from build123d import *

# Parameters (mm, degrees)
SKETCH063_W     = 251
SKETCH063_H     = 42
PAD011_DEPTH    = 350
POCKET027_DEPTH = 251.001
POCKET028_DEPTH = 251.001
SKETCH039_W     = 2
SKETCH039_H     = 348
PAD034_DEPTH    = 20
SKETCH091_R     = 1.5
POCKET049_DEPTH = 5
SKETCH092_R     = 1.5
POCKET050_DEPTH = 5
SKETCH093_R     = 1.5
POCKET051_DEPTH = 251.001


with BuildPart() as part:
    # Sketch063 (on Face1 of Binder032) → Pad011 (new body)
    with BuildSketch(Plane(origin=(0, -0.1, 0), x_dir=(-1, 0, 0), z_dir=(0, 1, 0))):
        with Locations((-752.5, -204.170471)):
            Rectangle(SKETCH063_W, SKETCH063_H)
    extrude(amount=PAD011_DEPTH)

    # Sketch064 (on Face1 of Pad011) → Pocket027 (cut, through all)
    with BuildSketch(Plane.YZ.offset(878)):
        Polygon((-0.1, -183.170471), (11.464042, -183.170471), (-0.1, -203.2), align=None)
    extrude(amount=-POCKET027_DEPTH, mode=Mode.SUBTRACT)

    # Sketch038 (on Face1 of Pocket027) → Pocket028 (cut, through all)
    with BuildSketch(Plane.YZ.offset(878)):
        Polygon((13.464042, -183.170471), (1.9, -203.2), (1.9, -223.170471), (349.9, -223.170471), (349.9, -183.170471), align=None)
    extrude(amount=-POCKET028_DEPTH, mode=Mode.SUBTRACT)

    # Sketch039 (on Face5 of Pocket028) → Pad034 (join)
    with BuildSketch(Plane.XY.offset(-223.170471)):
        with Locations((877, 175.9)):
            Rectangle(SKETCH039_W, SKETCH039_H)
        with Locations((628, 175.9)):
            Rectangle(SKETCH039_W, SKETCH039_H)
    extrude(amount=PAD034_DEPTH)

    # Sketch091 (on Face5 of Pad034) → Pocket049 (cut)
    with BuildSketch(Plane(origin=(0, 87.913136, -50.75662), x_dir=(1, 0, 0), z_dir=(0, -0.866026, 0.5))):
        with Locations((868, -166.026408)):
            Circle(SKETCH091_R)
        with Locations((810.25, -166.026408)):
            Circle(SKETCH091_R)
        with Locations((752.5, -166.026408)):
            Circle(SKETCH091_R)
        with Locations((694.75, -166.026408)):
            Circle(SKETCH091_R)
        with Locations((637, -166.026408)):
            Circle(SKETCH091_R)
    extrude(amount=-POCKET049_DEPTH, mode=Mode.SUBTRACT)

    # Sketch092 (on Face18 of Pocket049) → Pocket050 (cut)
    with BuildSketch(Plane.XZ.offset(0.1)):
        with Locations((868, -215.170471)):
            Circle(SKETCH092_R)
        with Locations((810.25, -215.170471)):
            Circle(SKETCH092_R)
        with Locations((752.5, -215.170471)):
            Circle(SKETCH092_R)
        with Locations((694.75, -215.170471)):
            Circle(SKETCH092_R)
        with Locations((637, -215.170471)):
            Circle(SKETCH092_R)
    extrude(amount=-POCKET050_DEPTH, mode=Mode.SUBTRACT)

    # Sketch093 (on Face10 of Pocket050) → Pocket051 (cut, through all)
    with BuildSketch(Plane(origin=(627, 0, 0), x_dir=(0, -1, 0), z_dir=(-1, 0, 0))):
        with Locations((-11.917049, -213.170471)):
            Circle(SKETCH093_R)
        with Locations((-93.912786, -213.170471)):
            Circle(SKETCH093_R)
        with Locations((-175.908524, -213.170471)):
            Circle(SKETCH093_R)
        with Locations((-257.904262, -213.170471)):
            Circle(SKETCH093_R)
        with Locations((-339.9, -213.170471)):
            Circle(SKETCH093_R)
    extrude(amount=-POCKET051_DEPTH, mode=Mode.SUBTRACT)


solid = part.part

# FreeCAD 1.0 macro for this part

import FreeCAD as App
import Part
import Sketcher
from FreeCAD import Vector
Q = App.Units.Quantity


def add_polygon(sketch, points):
    """Adds a closed chain of lines whose ends are joined by coincident constraints."""
    first, n = sketch.GeometryCount, len(points)
    for a, b in zip(points, points[1:] + points[:1]):
        sketch.addGeometry(Part.LineSegment(App.Vector(*a, 0), App.Vector(*b, 0)), False)
    for i in range(n):
        sketch.addConstraint(Sketcher.Constraint("Coincident", first + i, 2, first + (i + 1) % n, 1))

doc = App.newDocument("Part")
params = doc.addObject("Spreadsheet::Sheet", "Params")
for row, (alias, value) in enumerate([
    ("sketch1_width", "251 mm"),
    ("sketch1_height", "42 mm"),
    ("pad1_length", "350 mm"),
    ("sketch3_width", "348 mm"),
    ("sketch3_height", "40 mm"),
    ("sketch4_width", "2 mm"),
    ("sketch4_height", "348 mm"),
    ("pad2_length", "20 mm"),
    ("sketch5_diameter", "3 mm"),
    ("pocket3_length", "5 mm"),
    ("sketch6_diameter", "3 mm"),
    ("pocket4_length", "5 mm"),
    ("sketch7_diameter", "3 mm"),
], start=1):
    params.set(f"A{row}", alias)
    params.set(f"B{row}", "=" + value)
    params.setAlias(f"B{row}", alias)

body = doc.addObject("PartDesign::Body", "Body")

sketch1 = body.newObject("Sketcher::SketchObject", "Sketch")
sketch1.AttachmentSupport = (doc.getObject("XZ_Plane"), [""])
sketch1.MapMode = "FlatFace"
sketch1.AttachmentOffset = App.Placement(Vector(0, 0, 0.1), App.Rotation())
add_polygon(sketch1, [(878, -183), (878, -225), (627, -225), (627, -183)])
sketch1.addConstraint([
    Sketcher.Constraint("Vertical", 0),
    Sketcher.Constraint("Horizontal", 1),
    Sketcher.Constraint("Vertical", 2),
    Sketcher.Constraint("Horizontal", 3),
    Sketcher.Constraint("DistanceX", 1, 2, 1, 1, Q("251 mm")),
    Sketcher.Constraint("DistanceY", 0, 2, 0, 1, Q("42 mm")),
    Sketcher.Constraint("DistanceX", -1, 1, 0, 2, Q("878 mm")),
    Sketcher.Constraint("DistanceY", 0, 2, -1, 1, Q("225.170471 mm")),
])
sketch1.setExpression("Constraints[8]", "Params.sketch1_width")
sketch1.setExpression("Constraints[9]", "Params.sketch1_height")
pad1 = body.newObject("PartDesign::Pad", "Pad")
pad1.Profile = sketch1
pad1.setExpression("Length", "Params.pad1_length")
pad1.Reversed = True

sketch2 = body.newObject("Sketcher::SketchObject", "Sketch001")
sketch2.AttachmentSupport = (doc.getObject("YZ_Plane"), [""])
sketch2.MapMode = "FlatFace"
sketch2.AttachmentOffset = App.Placement(Vector(0, 0, 878), App.Rotation())
add_polygon(sketch2, [(11, -183), (0, -183), (0, -203)])
sketch2.addConstraint([
    Sketcher.Constraint("Horizontal", 0),
    Sketcher.Constraint("Vertical", 1),
    Sketcher.Constraint("DistanceX", 0, 2, -1, 1, Q("0.1 mm")),
    Sketcher.Constraint("DistanceY", 1, 2, -1, 1, Q("203.2 mm")),
    Sketcher.Constraint("Distance", 2, Q("23.128102 mm")),
    Sketcher.Constraint("DistanceX", 0, 2, 0, 1, Q("11.564042 mm")),
])
pocket1 = body.newObject("PartDesign::Pocket", "Pocket")
pocket1.Profile = sketch2
pocket1.Type = "ThroughAll"

sketch3 = body.newObject("Sketcher::SketchObject", "Sketch002")
sketch3.AttachmentSupport = (doc.getObject("YZ_Plane"), [""])
sketch3.MapMode = "FlatFace"
sketch3.AttachmentOffset = App.Placement(Vector(0, 0, 878), App.Rotation())
add_polygon(sketch3, [(13, -183), (2, -203), (2, -223), (350, -223), (350, -183)])
sketch3.addConstraint([
    Sketcher.Constraint("Vertical", 1),
    Sketcher.Constraint("Horizontal", 2),
    Sketcher.Constraint("Vertical", 3),
    Sketcher.Constraint("Horizontal", 4),
    Sketcher.Constraint("DistanceX", 2, 1, 2, 2, Q("348 mm")),
    Sketcher.Constraint("DistanceY", 3, 1, 3, 2, Q("40 mm")),
    Sketcher.Constraint("DistanceX", -1, 1, 0, 2, Q("1.9 mm")),
    Sketcher.Constraint("DistanceY", 0, 2, -1, 1, Q("203.2 mm")),
    Sketcher.Constraint("Distance", 0, Q("23.128102 mm")),
    Sketcher.Constraint("DistanceY", 1, 2, 1, 1, Q("19.970471 mm")),
])
sketch3.setExpression("Constraints[9]", "Params.sketch3_width")
sketch3.setExpression("Constraints[10]", "Params.sketch3_height")
pocket2 = body.newObject("PartDesign::Pocket", "Pocket001")
pocket2.Profile = sketch3
pocket2.Type = "ThroughAll"

sketch4 = body.newObject("Sketcher::SketchObject", "Sketch003")
sketch4.AttachmentSupport = (doc.getObject("XY_Plane"), [""])
sketch4.MapMode = "FlatFace"
sketch4.AttachmentOffset = App.Placement(Vector(0, 0, -223.170471), App.Rotation())
add_polygon(sketch4, [(876, 349.9), (876, 1.9), (878, 1.9), (878, 349.9)])
add_polygon(sketch4, [(627, 349.9), (627, 1.9), (629, 1.9), (629, 349.9)])
sketch4.addConstraint([
    Sketcher.Constraint("Vertical", 0),
    Sketcher.Constraint("Horizontal", 1),
    Sketcher.Constraint("Vertical", 2),
    Sketcher.Constraint("Horizontal", 3),
    Sketcher.Constraint("Vertical", 4),
    Sketcher.Constraint("Horizontal", 5),
    Sketcher.Constraint("Vertical", 6),
    Sketcher.Constraint("Horizontal", 7),
    Sketcher.Constraint("Horizontal", 1, 2, 4, 2),
    Sketcher.Constraint("Horizontal", 3, 2, 6, 2),
    Sketcher.Constraint("Equal", 3, 5),
    Sketcher.Constraint("DistanceX", 1, 1, 1, 2, Q("2 mm")),
    Sketcher.Constraint("DistanceY", 0, 2, 0, 1, Q("348 mm")),
    Sketcher.Constraint("DistanceX", -1, 1, 0, 2, Q("876 mm")),
    Sketcher.Constraint("DistanceX", -1, 1, 4, 2, Q("627 mm")),
    Sketcher.Constraint("DistanceY", -1, 1, 0, 2, Q("1.9 mm")),
])
sketch4.setExpression("Constraints[19]", "Params.sketch4_width")
sketch4.setExpression("Constraints[20]", "Params.sketch4_height")
pad2 = body.newObject("PartDesign::Pad", "Pad001")
pad2.Profile = sketch4
pad2.setExpression("Length", "Params.pad2_length")

sketch5 = body.newObject("Sketcher::SketchObject", "Sketch004")
sketch5.Placement = App.Placement(Vector(0, 87.913136, -50.75662), App.Rotation(Vector(1, 0, 0), Vector(0, 0.499999742, 0.866025553), Vector(0, -0.866025553, 0.499999742), "ZXY"))
sketch5.addGeometry([
    Part.Circle(Vector(868, -166, 0), Vector(0, 0, 1), 1.5),
    Part.Circle(Vector(810.2, -166, 0), Vector(0, 0, 1), 1.5),
    Part.Circle(Vector(752.5, -166, 0), Vector(0, 0, 1), 1.5),
    Part.Circle(Vector(694.8, -166, 0), Vector(0, 0, 1), 1.5),
    Part.Circle(Vector(637, -166, 0), Vector(0, 0, 1), 1.5),
], False)
sketch5.addConstraint([
    Sketcher.Constraint("Equal", 0, 1),
    Sketcher.Constraint("Equal", 1, 2),
    Sketcher.Constraint("Equal", 2, 3),
    Sketcher.Constraint("Equal", 3, 4),
    Sketcher.Constraint("Horizontal", 0, 3, 1, 3),
    Sketcher.Constraint("Horizontal", 1, 3, 2, 3),
    Sketcher.Constraint("Horizontal", 2, 3, 3, 3),
    Sketcher.Constraint("Horizontal", 3, 3, 4, 3),
    Sketcher.Constraint("Diameter", 0, Q("3 mm")),
    Sketcher.Constraint("DistanceX", -1, 1, 0, 3, Q("868 mm")),
    Sketcher.Constraint("DistanceX", -1, 1, 4, 3, Q("637 mm")),
    Sketcher.Constraint("DistanceX", -1, 1, 2, 3, Q("752.5 mm")),
    Sketcher.Constraint("DistanceX", 3, 3, 1, 3, Q("115.5 mm")),
    Sketcher.Constraint("DistanceX", -1, 1, 1, 3, Q("810.25 mm")),
    Sketcher.Constraint("DistanceY", 0, 3, -1, 1, Q("166.026408 mm")),
])
sketch5.setExpression("Constraints[8]", "Params.sketch5_diameter")
pocket3 = body.newObject("PartDesign::Pocket", "Pocket002")
pocket3.Profile = sketch5
pocket3.setExpression("Length", "Params.pocket3_length")

sketch6 = body.newObject("Sketcher::SketchObject", "Sketch005")
sketch6.AttachmentSupport = (doc.getObject("XZ_Plane"), [""])
sketch6.MapMode = "FlatFace"
sketch6.AttachmentOffset = App.Placement(Vector(0, 0, 0.1), App.Rotation())
sketch6.addGeometry([
    Part.Circle(Vector(868, -215.2, 0), Vector(0, 0, 1), 1.5),
    Part.Circle(Vector(810.2, -215.2, 0), Vector(0, 0, 1), 1.5),
    Part.Circle(Vector(752.5, -215.2, 0), Vector(0, 0, 1), 1.5),
    Part.Circle(Vector(694.8, -215.2, 0), Vector(0, 0, 1), 1.5),
    Part.Circle(Vector(637, -215.2, 0), Vector(0, 0, 1), 1.5),
], False)
sketch6.addConstraint([
    Sketcher.Constraint("Equal", 0, 1),
    Sketcher.Constraint("Equal", 1, 2),
    Sketcher.Constraint("Equal", 2, 3),
    Sketcher.Constraint("Equal", 3, 4),
    Sketcher.Constraint("Horizontal", 0, 3, 1, 3),
    Sketcher.Constraint("Horizontal", 1, 3, 2, 3),
    Sketcher.Constraint("Horizontal", 2, 3, 3, 3),
    Sketcher.Constraint("Horizontal", 3, 3, 4, 3),
    Sketcher.Constraint("Diameter", 0, Q("3 mm")),
    Sketcher.Constraint("DistanceX", -1, 1, 0, 3, Q("868 mm")),
    Sketcher.Constraint("DistanceX", -1, 1, 4, 3, Q("637 mm")),
    Sketcher.Constraint("DistanceX", -1, 1, 2, 3, Q("752.5 mm")),
    Sketcher.Constraint("DistanceX", 3, 3, 1, 3, Q("115.5 mm")),
    Sketcher.Constraint("DistanceX", -1, 1, 1, 3, Q("810.25 mm")),
    Sketcher.Constraint("DistanceY", 0, 3, -1, 1, Q("215.170471 mm")),
])
sketch6.setExpression("Constraints[8]", "Params.sketch6_diameter")
pocket4 = body.newObject("PartDesign::Pocket", "Pocket003")
pocket4.Profile = sketch6
pocket4.setExpression("Length", "Params.pocket4_length")

sketch7 = body.newObject("Sketcher::SketchObject", "Sketch006")
sketch7.AttachmentSupport = (doc.getObject("YZ_Plane"), [""])
sketch7.MapMode = "FlatFace"
sketch7.AttachmentOffset = App.Placement(Vector(0, 0, 627), App.Rotation())
sketch7.addGeometry([
    Part.Circle(Vector(11.9, -213.2, 0), Vector(0, 0, 1), 1.5),
    Part.Circle(Vector(93.9, -213.2, 0), Vector(0, 0, 1), 1.5),
    Part.Circle(Vector(175.9, -213.2, 0), Vector(0, 0, 1), 1.5),
    Part.Circle(Vector(257.9, -213.2, 0), Vector(0, 0, 1), 1.5),
    Part.Circle(Vector(339.9, -213.2, 0), Vector(0, 0, 1), 1.5),
], False)
sketch7.addConstraint([
    Sketcher.Constraint("Equal", 0, 1),
    Sketcher.Constraint("Equal", 1, 2),
    Sketcher.Constraint("Equal", 2, 3),
    Sketcher.Constraint("Equal", 3, 4),
    Sketcher.Constraint("Horizontal", 0, 3, 1, 3),
    Sketcher.Constraint("Horizontal", 1, 3, 2, 3),
    Sketcher.Constraint("Horizontal", 2, 3, 3, 3),
    Sketcher.Constraint("Horizontal", 3, 3, 4, 3),
    Sketcher.Constraint("Diameter", 0, Q("3 mm")),
    Sketcher.Constraint("DistanceX", -1, 1, 4, 3, Q("339.9 mm")),
    Sketcher.Constraint("DistanceX", -1, 1, 0, 3, Q("11.917049 mm")),
    Sketcher.Constraint("DistanceY", 0, 3, -1, 1, Q("213.170471 mm")),
    Sketcher.Constraint("DistanceX", -1, 1, 3, 3, Q("257.904262 mm")),
    Sketcher.Constraint("DistanceX", 1, 3, 2, 3, Q("81.995738 mm")),
    Sketcher.Constraint("DistanceX", 2, 3, 3, 3, Q("81.995738 mm")),
])
sketch7.setExpression("Constraints[8]", "Params.sketch7_diameter")
pocket5 = body.newObject("PartDesign::Pocket", "Pocket004")
pocket5.Profile = sketch7
pocket5.Type = "ThroughAll"
pocket5.Reversed = True

doc.recompute()
